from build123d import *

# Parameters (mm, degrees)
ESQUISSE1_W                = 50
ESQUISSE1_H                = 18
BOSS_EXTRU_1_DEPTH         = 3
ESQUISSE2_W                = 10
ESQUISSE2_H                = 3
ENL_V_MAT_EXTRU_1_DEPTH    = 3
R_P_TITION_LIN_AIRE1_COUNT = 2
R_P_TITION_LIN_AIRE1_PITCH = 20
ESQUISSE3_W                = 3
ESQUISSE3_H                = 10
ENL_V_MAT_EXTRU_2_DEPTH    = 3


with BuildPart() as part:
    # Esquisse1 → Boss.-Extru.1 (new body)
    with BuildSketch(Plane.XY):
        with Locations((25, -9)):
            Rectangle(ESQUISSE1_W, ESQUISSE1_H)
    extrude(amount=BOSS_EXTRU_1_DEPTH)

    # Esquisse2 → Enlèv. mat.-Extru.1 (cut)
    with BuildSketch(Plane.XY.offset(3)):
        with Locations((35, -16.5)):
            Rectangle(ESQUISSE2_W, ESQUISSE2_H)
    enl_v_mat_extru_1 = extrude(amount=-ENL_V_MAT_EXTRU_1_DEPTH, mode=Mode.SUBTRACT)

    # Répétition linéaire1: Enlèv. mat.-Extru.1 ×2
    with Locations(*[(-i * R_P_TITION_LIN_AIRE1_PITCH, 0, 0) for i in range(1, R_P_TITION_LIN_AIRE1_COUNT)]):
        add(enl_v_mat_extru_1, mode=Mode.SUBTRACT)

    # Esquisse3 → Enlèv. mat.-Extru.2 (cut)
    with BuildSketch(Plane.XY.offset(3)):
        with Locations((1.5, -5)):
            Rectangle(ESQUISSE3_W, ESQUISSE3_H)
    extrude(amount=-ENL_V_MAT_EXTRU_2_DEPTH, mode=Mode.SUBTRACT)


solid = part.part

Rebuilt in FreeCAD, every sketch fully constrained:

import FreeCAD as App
import Part
import Sketcher
Q = App.Units.Quantity


def add_polygon(sketch, points):
    """Adds a closed chain of lines whose ends are joined by coincident constraints."""
    first, n = sketch.GeometryCount, len(points)
    for a, b in zip(points, points[1:] + points[:1]):
        sketch.addGeometry(Part.LineSegment(App.Vector(*a, 0), App.Vector(*b, 0)), False)
    for i in range(n):
        sketch.addConstraint(Sketcher.Constraint("Coincident", first + i, 2, first + (i + 1) % n, 1))

doc = App.newDocument("Part")
body = doc.addObject("PartDesign::Body", "Body")

# Sketch on XY plane
sketch1 = body.newObject("Sketcher::SketchObject", "Sketch")
sketch1.AttachmentSupport = (doc.getObject("XY_Plane"), [""])
sketch1.MapMode = "FlatFace"
add_polygon(sketch1, [(0, 0), (0, -18), (50, -18), (50, 0)])  # lines 0-3
sketch1.addConstraint([
    Sketcher.Constraint("Vertical", 0),
    Sketcher.Constraint("Horizontal", 1),
    Sketcher.Constraint("Vertical", 2),
    Sketcher.Constraint("Horizontal", 3),
    Sketcher.Constraint("Coincident", 3, 2, -1, 1),
    Sketcher.Constraint("DistanceX", 1, 1, 1, 2, Q("50 mm")),
    Sketcher.Constraint("DistanceY", 0, 2, 0, 1, Q("18 mm")),
])
pad1 = body.newObject("PartDesign::Pad", "Pad")
pad1.Profile = sketch1
pad1.Length = 3

# Sketch on XY plane
sketch2 = body.newObject("Sketcher::SketchObject", "Sketch001")
sketch2.AttachmentSupport = (doc.getObject("XY_Plane"), [""])
sketch2.MapMode = "FlatFace"
sketch2.AttachmentOffset = App.Placement(App.Vector(0, 0, 3), App.Rotation())
add_polygon(sketch2, [(30, -15), (30, -18), (40, -18), (40, -15)])  # lines 0-3
sketch2.addConstraint([
    Sketcher.Constraint("Vertical", 0),
    Sketcher.Constraint("Horizontal", 1),
    Sketcher.Constraint("Vertical", 2),
    Sketcher.Constraint("Horizontal", 3),
    Sketcher.Constraint("DistanceX", 1, 1, 1, 2, Q("10 mm")),
    Sketcher.Constraint("DistanceY", 0, 2, 0, 1, Q("3 mm")),
    Sketcher.Constraint("DistanceX", -1, 1, 0, 2, Q("30 mm")),
    Sketcher.Constraint("DistanceY", 0, 2, -1, 1, Q("18 mm")),
])
pocket1 = body.newObject("PartDesign::Pocket", "Pocket")
pocket1.Profile = sketch2
pocket1.Length = 3
doc.recompute()

linearpattern = body.newObject("PartDesign::LinearPattern", "LinearPattern")
linearpattern.Originals = [pocket1]
linearpattern.Direction = (doc.getObject("X_Axis"), [""])
linearpattern.Mode = "offset"
linearpattern.Offset = 20
linearpattern.Occurrences = 2
linearpattern.Reversed = True
body.Tip = linearpattern

# Sketch on XY plane
sketch3 = body.newObject("Sketcher::SketchObject", "Sketch002")
sketch3.AttachmentSupport = (doc.getObject("XY_Plane"), [""])
sketch3.MapMode = "FlatFace"
sketch3.AttachmentOffset = App.Placement(App.Vector(0, 0, 3), App.Rotation())
add_polygon(sketch3, [(0, 0), (0, -10), (3, -10), (3, 0)])  # lines 0-3
sketch3.addConstraint([
    Sketcher.Constraint("Vertical", 0),
    Sketcher.Constraint("Horizontal", 1),
    Sketcher.Constraint("Vertical", 2),
    Sketcher.Constraint("Horizontal", 3),
    Sketcher.Constraint("Coincident", 3, 2, -1, 1),
    Sketcher.Constraint("DistanceX", 1, 1, 1, 2, Q("3 mm")),
    Sketcher.Constraint("DistanceY", 0, 2, 0, 1, Q("10 mm")),
])
pocket2 = body.newObject("PartDesign::Pocket", "Pocket001")
pocket2.Profile = sketch3
pocket2.Length = 3

doc.recompute()
